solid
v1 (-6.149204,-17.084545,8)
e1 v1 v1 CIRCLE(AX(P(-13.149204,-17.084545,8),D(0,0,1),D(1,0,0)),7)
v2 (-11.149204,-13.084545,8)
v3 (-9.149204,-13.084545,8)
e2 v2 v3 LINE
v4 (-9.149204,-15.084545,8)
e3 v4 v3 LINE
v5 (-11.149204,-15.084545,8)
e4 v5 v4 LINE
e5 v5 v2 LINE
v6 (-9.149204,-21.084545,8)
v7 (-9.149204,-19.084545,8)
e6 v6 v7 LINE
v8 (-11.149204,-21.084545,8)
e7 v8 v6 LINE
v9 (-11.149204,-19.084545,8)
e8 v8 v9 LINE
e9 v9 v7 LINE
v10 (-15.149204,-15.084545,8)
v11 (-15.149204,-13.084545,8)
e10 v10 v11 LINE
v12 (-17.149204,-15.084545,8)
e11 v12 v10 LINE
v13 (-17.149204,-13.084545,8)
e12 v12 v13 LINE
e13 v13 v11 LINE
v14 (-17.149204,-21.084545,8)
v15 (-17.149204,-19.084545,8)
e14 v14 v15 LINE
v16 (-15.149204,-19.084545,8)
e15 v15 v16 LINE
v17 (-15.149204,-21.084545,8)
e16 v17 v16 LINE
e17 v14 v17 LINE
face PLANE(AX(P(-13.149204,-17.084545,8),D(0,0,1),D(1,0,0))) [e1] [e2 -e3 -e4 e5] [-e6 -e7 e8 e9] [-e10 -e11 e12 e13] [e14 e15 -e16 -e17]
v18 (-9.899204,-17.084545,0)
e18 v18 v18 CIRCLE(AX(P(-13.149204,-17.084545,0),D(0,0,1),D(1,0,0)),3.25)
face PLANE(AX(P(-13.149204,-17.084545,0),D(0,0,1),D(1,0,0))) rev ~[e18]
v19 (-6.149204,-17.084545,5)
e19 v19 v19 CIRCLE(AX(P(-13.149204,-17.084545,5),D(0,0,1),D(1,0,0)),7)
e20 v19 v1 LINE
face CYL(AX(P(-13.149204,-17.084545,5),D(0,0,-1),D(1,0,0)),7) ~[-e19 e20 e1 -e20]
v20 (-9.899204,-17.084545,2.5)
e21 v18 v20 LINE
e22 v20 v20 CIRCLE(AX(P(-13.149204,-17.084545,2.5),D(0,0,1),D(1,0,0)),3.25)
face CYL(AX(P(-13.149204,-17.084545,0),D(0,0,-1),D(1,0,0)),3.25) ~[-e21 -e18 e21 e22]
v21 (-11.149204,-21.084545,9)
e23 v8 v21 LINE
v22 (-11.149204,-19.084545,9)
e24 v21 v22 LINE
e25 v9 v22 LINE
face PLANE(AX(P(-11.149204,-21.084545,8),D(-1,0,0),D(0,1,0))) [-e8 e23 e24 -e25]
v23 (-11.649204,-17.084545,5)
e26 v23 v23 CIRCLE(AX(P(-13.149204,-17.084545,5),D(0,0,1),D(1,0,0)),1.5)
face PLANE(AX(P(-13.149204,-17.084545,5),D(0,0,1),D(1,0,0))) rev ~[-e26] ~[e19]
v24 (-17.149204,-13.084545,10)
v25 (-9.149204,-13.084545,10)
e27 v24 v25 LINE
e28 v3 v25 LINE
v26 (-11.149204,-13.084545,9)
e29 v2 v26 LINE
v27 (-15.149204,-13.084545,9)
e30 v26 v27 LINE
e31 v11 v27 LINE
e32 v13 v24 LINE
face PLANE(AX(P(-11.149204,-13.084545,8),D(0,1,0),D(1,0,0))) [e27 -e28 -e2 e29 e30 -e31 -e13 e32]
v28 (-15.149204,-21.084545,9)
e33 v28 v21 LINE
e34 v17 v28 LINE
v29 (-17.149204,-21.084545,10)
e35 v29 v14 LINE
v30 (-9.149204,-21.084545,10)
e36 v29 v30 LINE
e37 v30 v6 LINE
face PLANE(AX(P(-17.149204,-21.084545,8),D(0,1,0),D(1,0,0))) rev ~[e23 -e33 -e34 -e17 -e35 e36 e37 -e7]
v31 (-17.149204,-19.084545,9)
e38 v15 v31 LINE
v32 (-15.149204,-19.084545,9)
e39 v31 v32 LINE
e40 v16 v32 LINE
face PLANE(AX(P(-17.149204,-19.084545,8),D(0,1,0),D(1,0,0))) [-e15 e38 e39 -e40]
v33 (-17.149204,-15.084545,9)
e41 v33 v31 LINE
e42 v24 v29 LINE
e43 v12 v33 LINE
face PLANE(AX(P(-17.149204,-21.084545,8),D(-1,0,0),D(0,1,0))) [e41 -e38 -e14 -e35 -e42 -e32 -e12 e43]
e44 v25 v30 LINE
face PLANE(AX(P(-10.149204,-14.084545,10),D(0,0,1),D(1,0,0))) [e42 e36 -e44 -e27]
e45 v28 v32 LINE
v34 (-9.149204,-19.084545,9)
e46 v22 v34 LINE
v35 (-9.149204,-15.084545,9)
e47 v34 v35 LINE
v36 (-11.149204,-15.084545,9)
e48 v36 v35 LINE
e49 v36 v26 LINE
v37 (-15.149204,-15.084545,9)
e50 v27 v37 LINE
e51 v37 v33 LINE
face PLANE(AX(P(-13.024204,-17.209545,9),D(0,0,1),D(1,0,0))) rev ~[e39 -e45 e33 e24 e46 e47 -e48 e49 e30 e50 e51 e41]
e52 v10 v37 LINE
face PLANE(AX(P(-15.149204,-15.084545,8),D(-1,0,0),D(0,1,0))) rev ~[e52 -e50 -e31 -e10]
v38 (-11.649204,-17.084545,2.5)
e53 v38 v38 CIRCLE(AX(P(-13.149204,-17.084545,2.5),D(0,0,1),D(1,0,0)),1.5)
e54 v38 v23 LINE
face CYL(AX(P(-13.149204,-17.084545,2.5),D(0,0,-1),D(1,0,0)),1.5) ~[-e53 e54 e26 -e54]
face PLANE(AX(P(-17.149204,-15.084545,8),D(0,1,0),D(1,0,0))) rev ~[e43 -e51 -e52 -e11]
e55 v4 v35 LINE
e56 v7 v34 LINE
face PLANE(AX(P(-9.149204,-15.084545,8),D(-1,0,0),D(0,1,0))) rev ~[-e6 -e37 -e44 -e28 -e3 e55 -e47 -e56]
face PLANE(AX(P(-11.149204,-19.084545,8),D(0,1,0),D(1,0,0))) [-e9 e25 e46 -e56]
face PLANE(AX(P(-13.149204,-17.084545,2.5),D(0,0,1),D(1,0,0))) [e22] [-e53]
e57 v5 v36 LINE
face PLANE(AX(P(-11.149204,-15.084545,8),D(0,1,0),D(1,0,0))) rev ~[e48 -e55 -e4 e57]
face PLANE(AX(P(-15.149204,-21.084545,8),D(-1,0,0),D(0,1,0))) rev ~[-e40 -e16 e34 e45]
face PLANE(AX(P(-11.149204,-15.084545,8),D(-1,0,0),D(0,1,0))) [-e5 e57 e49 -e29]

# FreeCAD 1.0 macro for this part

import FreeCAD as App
import Part
import Sketcher
from FreeCAD import Vector

doc = App.newDocument("Part")
body = doc.addObject("PartDesign::Body", "Body")
body.AllowCompound = True

sketch1 = body.newObject("Sketcher::SketchObject", "Sketch")
sketch1.AttachmentSupport = (doc.getObject("XY_Plane"), [""])
sketch1.MapMode = "FlatFace"
sketch1.addGeometry(Part.Circle(Vector(-13.1, -17.1, 0), Vector(0, 0, 1), 3.2), False)
sketch1.addConstraint([
    Sketcher.Constraint("Diameter", 0, 6.5),
    Sketcher.Constraint("DistanceX", 0, 3, -1, 1, 13.149204),
    Sketcher.Constraint("DistanceY", 0, 3, -1, 1, 17.084545),
])
pad1 = body.newObject("PartDesign::Pad", "Pad")
pad1.Profile = sketch1
pad1.Length = 2.5

sketch2 = body.newObject("Sketcher::SketchObject", "Sketch001")
sketch2.AttachmentSupport = (doc.getObject("XY_Plane"), [""])
sketch2.MapMode = "FlatFace"
sketch2.AttachmentOffset = App.Placement(Vector(0, 0, 2.5), App.Rotation())
sketch2.addGeometry(Part.Circle(Vector(-13.1, -17.1, 0), Vector(0, 0, 1), 1.5), False)
sketch2.addConstraint([
    Sketcher.Constraint("Diameter", 0, 3.0),
    Sketcher.Constraint("DistanceX", 0, 3, -1, 1, 13.149204),
    Sketcher.Constraint("DistanceY", 0, 3, -1, 1, 17.084545),
])
pad2 = body.newObject("PartDesign::Pad", "Pad001")
pad2.Profile = sketch2
pad2.Length = 2.5

sketch3 = body.newObject("Sketcher::SketchObject", "Sketch002")
sketch3.AttachmentSupport = (doc.getObject("XY_Plane"), [""])
sketch3.MapMode = "FlatFace"
sketch3.AttachmentOffset = App.Placement(Vector(0, 0, 5), App.Rotation())
sketch3.addGeometry([
    Part.Circle(Vector(-13.1, -17.1, 0), Vector(0, 0, 1), 7),
    Part.Circle(Vector(-13.1, -17.1, 0), Vector(0, 0, 1), 1.5),
], False)
sketch3.addConstraint([
    Sketcher.Constraint("Coincident", 1, 3, 0, 3),
    Sketcher.Constraint("Diameter", 0, 14.0),
    Sketcher.Constraint("Diameter", 1, 3.0),
    Sketcher.Constraint("DistanceX", 0, 3, -1, 1, 13.149204),
    Sketcher.Constraint("DistanceY", 0, 3, -1, 1, 17.084545),
])
pad3 = body.newObject("PartDesign::Pad", "Pad002")
pad3.Profile = sketch3
pad3.Length = 3

sketch4 = body.newObject("Sketcher::SketchObject", "Sketch003")
sketch4.AttachmentSupport = (doc.getObject("XY_Plane"), [""])
sketch4.MapMode = "FlatFace"
sketch4.AttachmentOffset = App.Placement(Vector(0, 0, 5), App.Rotation())
sketch4.addGeometry(Part.Circle(Vector(-13.1, -17.1, 0), Vector(0, 0, 1), 1.5), False)
sketch4.addConstraint([
    Sketcher.Constraint("Diameter", 0, 3.0),
    Sketcher.Constraint("DistanceX", 0, 3, -1, 1, 13.149204),
    Sketcher.Constraint("DistanceY", 0, 3, -1, 1, 17.084545),
])
pad4 = body.newObject("PartDesign::Pad", "Pad003")
pad4.Profile = sketch4
pad4.Length = 3

sketch5 = body.newObject("Sketcher::SketchObject", "Sketch004")
sketch5.AttachmentSupport = (doc.getObject("XY_Plane"), [""])
sketch5.MapMode = "FlatFace"
sketch5.AttachmentOffset = App.Placement(Vector(0, 0, 8), App.Rotation())
sketch5.addGeometry([
    Part.LineSegment(Vector(-17.1, -13.1, 0), Vector(-17.1, -15.1, 0)),
    Part.LineSegment(Vector(-17.1, -15.1, 0), Vector(-15.1, -15.1, 0)),
    Part.LineSegment(Vector(-15.1, -15.1, 0), Vector(-15.1, -13.1, 0)),
    Part.LineSegment(Vector(-15.1, -13.1, 0), Vector(-17.1, -13.1, 0)),
    Part.LineSegment(Vector(-11.1, -13.1, 0), Vector(-11.1, -15.1, 0)),
    Part.LineSegment(Vector(-11.1, -15.1, 0), Vector(-9.1, -15.1, 0)),
    Part.LineSegment(Vector(-9.1, -15.1, 0), Vector(-9.1, -13.1, 0)),
    Part.LineSegment(Vector(-9.1, -13.1, 0), Vector(-11.1, -13.1, 0)),
    Part.LineSegment(Vector(-11.1, -19.1, 0), Vector(-11.1, -21.1, 0)),
    Part.LineSegment(Vector(-11.1, -21.1, 0), Vector(-9.1, -21.1, 0)),
    Part.LineSegment(Vector(-9.1, -21.1, 0), Vector(-9.1, -19.1, 0)),
    Part.LineSegment(Vector(-9.1, -19.1, 0), Vector(-11.1, -19.1, 0)),
    Part.LineSegment(Vector(-17.1, -19.1, 0), Vector(-17.1, -21.1, 0)),
    Part.LineSegment(Vector(-17.1, -21.1, 0), Vector(-15.1, -21.1, 0)),
    Part.LineSegment(Vector(-15.1, -21.1, 0), Vector(-15.1, -19.1, 0)),
    Part.LineSegment(Vector(-15.1, -19.1, 0), Vector(-17.1, -19.1, 0)),
], False)
sketch5.addConstraint([
    Sketcher.Constraint("Coincident", 0, 2, 1, 1),
    Sketcher.Constraint("Coincident", 1, 2, 2, 1),
    Sketcher.Constraint("Coincident", 2, 2, 3, 1),
    Sketcher.Constraint("Coincident", 3, 2, 0, 1),
    Sketcher.Constraint("Coincident", 4, 2, 5, 1),
    Sketcher.Constraint("Coincident", 5, 2, 6, 1),
    Sketcher.Constraint("Coincident", 6, 2, 7, 1),
    Sketcher.Constraint("Coincident", 7, 2, 4, 1),
    Sketcher.Constraint("Coincident", 8, 2, 9, 1),
    Sketcher.Constraint("Coincident", 9, 2, 10, 1),
    Sketcher.Constraint("Coincident", 10, 2, 11, 1),
    Sketcher.Constraint("Coincident", 11, 2, 8, 1),
    Sketcher.Constraint("Coincident", 12, 2, 13, 1),
    Sketcher.Constraint("Coincident", 13, 2, 14, 1),
    Sketcher.Constraint("Coincident", 14, 2, 15, 1),
    Sketcher.Constraint("Coincident", 15, 2, 12, 1),
    Sketcher.Constraint("Vertical", 0),
    Sketcher.Constraint("Horizontal", 1),
    Sketcher.Constraint("Vertical", 2),
    Sketcher.Constraint("Horizontal", 3),
    Sketcher.Constraint("Vertical", 4),
    Sketcher.Constraint("Horizontal", 5),
    Sketcher.Constraint("Vertical", 6),
    Sketcher.Constraint("Horizontal", 7),
    Sketcher.Constraint("Vertical", 8),
    Sketcher.Constraint("Horizontal", 9),
    Sketcher.Constraint("Vertical", 10),
    Sketcher.Constraint("Horizontal", 11),
    Sketcher.Constraint("Vertical", 12),
    Sketcher.Constraint("Horizontal", 13),
    Sketcher.Constraint("Vertical", 14),
    Sketcher.Constraint("Horizontal", 15),
    Sketcher.Constraint("Horizontal", 1, 2, 4, 2),
    Sketcher.Constraint("Horizontal", 3, 2, 6, 2),
    Sketcher.Constraint("Horizontal", 9, 2, 12, 2),
    Sketcher.Constraint("Horizontal", 11, 2, 14, 2),
    Sketcher.Constraint("Vertical", 7, 2, 8, 2),
    Sketcher.Constraint("Vertical", 6, 2, 9, 2),
    Sketcher.Constraint("Vertical", 3, 2, 12, 2),
    Sketcher.Constraint("Vertical", 2, 2, 13, 2),
    Sketcher.Constraint("Equal", 3, 5),
    Sketcher.Constraint("Equal", 15, 0),
    Sketcher.Constraint("Equal", 6, 8),
    Sketcher.Constraint("DistanceX", 1, 1, 1, 2, 2.0),
    Sketcher.Constraint("DistanceX", 1, 2, 4, 2, 4.0),
    Sketcher.Constraint("DistanceY", 8, 2, 4, 2, 6.0),
    Sketcher.Constraint("DistanceX", 0, 2, -1, 1, 17.149204),
    Sketcher.Constraint("DistanceY", 0, 2, -1, 1, 15.084545),
])
pad5 = body.newObject("PartDesign::Pad", "Pad004")
pad5.Profile = sketch5
pad5.Length = 2

sketch6 = body.newObject("Sketcher::SketchObject", "Sketch005")
sketch6.AttachmentSupport = (doc.getObject("XY_Plane"), [""])
sketch6.MapMode = "FlatFace"
sketch6.AttachmentOffset = App.Placement(Vector(0, 0, 10), App.Rotation())
sketch6.addGeometry([
    Part.LineSegment(Vector(-9.1, -13.1, 0), Vector(-15.1, -13.1, 0)),
    Part.LineSegment(Vector(-15.1, -13.1, 0), Vector(-15.1, -15.1, 0)),
    Part.LineSegment(Vector(-15.1, -15.1, 0), Vector(-17.1, -15.1, 0)),
    Part.LineSegment(Vector(-17.1, -15.1, 0), Vector(-17.1, -21.1, 0)),
    Part.LineSegment(Vector(-17.1, -21.1, 0), Vector(-9.1, -21.1, 0)),
    Part.LineSegment(Vector(-9.1, -21.1, 0), Vector(-9.1, -13.1, 0)),
], False)
sketch6.addConstraint([
    Sketcher.Constraint("Coincident", 0, 2, 1, 1),
    Sketcher.Constraint("Coincident", 1, 2, 2, 1),
    Sketcher.Constraint("Coincident", 2, 2, 3, 1),
    Sketcher.Constraint("Coincident", 3, 2, 4, 1),
    Sketcher.Constraint("Coincident", 4, 2, 5, 1),
    Sketcher.Constraint("Coincident", 5, 2, 0, 1),
    Sketcher.Constraint("Horizontal", 0),
    Sketcher.Constraint("Vertical", 1),
    Sketcher.Constraint("Horizontal", 2),
    Sketcher.Constraint("Vertical", 3),
    Sketcher.Constraint("Horizontal", 4),
    Sketcher.Constraint("Vertical", 5),
    Sketcher.Constraint("Equal", 2, 1),
    Sketcher.Constraint("Equal", 0, 3),
    Sketcher.Constraint("DistanceX", 0, 2, 0, 1, 6.0),
    Sketcher.Constraint("DistanceX", 2, 2, 2, 1, 2.0),
    Sketcher.Constraint("DistanceX", 0, 2, -1, 1, 15.149204),
    Sketcher.Constraint("DistanceY", 0, 2, -1, 1, 13.084545),
])
pad6 = body.newObject("PartDesign::Pad", "Pad005")
pad6.Profile = sketch6
pad6.Length = 1
pad6.Reversed = True

doc.recompute()
